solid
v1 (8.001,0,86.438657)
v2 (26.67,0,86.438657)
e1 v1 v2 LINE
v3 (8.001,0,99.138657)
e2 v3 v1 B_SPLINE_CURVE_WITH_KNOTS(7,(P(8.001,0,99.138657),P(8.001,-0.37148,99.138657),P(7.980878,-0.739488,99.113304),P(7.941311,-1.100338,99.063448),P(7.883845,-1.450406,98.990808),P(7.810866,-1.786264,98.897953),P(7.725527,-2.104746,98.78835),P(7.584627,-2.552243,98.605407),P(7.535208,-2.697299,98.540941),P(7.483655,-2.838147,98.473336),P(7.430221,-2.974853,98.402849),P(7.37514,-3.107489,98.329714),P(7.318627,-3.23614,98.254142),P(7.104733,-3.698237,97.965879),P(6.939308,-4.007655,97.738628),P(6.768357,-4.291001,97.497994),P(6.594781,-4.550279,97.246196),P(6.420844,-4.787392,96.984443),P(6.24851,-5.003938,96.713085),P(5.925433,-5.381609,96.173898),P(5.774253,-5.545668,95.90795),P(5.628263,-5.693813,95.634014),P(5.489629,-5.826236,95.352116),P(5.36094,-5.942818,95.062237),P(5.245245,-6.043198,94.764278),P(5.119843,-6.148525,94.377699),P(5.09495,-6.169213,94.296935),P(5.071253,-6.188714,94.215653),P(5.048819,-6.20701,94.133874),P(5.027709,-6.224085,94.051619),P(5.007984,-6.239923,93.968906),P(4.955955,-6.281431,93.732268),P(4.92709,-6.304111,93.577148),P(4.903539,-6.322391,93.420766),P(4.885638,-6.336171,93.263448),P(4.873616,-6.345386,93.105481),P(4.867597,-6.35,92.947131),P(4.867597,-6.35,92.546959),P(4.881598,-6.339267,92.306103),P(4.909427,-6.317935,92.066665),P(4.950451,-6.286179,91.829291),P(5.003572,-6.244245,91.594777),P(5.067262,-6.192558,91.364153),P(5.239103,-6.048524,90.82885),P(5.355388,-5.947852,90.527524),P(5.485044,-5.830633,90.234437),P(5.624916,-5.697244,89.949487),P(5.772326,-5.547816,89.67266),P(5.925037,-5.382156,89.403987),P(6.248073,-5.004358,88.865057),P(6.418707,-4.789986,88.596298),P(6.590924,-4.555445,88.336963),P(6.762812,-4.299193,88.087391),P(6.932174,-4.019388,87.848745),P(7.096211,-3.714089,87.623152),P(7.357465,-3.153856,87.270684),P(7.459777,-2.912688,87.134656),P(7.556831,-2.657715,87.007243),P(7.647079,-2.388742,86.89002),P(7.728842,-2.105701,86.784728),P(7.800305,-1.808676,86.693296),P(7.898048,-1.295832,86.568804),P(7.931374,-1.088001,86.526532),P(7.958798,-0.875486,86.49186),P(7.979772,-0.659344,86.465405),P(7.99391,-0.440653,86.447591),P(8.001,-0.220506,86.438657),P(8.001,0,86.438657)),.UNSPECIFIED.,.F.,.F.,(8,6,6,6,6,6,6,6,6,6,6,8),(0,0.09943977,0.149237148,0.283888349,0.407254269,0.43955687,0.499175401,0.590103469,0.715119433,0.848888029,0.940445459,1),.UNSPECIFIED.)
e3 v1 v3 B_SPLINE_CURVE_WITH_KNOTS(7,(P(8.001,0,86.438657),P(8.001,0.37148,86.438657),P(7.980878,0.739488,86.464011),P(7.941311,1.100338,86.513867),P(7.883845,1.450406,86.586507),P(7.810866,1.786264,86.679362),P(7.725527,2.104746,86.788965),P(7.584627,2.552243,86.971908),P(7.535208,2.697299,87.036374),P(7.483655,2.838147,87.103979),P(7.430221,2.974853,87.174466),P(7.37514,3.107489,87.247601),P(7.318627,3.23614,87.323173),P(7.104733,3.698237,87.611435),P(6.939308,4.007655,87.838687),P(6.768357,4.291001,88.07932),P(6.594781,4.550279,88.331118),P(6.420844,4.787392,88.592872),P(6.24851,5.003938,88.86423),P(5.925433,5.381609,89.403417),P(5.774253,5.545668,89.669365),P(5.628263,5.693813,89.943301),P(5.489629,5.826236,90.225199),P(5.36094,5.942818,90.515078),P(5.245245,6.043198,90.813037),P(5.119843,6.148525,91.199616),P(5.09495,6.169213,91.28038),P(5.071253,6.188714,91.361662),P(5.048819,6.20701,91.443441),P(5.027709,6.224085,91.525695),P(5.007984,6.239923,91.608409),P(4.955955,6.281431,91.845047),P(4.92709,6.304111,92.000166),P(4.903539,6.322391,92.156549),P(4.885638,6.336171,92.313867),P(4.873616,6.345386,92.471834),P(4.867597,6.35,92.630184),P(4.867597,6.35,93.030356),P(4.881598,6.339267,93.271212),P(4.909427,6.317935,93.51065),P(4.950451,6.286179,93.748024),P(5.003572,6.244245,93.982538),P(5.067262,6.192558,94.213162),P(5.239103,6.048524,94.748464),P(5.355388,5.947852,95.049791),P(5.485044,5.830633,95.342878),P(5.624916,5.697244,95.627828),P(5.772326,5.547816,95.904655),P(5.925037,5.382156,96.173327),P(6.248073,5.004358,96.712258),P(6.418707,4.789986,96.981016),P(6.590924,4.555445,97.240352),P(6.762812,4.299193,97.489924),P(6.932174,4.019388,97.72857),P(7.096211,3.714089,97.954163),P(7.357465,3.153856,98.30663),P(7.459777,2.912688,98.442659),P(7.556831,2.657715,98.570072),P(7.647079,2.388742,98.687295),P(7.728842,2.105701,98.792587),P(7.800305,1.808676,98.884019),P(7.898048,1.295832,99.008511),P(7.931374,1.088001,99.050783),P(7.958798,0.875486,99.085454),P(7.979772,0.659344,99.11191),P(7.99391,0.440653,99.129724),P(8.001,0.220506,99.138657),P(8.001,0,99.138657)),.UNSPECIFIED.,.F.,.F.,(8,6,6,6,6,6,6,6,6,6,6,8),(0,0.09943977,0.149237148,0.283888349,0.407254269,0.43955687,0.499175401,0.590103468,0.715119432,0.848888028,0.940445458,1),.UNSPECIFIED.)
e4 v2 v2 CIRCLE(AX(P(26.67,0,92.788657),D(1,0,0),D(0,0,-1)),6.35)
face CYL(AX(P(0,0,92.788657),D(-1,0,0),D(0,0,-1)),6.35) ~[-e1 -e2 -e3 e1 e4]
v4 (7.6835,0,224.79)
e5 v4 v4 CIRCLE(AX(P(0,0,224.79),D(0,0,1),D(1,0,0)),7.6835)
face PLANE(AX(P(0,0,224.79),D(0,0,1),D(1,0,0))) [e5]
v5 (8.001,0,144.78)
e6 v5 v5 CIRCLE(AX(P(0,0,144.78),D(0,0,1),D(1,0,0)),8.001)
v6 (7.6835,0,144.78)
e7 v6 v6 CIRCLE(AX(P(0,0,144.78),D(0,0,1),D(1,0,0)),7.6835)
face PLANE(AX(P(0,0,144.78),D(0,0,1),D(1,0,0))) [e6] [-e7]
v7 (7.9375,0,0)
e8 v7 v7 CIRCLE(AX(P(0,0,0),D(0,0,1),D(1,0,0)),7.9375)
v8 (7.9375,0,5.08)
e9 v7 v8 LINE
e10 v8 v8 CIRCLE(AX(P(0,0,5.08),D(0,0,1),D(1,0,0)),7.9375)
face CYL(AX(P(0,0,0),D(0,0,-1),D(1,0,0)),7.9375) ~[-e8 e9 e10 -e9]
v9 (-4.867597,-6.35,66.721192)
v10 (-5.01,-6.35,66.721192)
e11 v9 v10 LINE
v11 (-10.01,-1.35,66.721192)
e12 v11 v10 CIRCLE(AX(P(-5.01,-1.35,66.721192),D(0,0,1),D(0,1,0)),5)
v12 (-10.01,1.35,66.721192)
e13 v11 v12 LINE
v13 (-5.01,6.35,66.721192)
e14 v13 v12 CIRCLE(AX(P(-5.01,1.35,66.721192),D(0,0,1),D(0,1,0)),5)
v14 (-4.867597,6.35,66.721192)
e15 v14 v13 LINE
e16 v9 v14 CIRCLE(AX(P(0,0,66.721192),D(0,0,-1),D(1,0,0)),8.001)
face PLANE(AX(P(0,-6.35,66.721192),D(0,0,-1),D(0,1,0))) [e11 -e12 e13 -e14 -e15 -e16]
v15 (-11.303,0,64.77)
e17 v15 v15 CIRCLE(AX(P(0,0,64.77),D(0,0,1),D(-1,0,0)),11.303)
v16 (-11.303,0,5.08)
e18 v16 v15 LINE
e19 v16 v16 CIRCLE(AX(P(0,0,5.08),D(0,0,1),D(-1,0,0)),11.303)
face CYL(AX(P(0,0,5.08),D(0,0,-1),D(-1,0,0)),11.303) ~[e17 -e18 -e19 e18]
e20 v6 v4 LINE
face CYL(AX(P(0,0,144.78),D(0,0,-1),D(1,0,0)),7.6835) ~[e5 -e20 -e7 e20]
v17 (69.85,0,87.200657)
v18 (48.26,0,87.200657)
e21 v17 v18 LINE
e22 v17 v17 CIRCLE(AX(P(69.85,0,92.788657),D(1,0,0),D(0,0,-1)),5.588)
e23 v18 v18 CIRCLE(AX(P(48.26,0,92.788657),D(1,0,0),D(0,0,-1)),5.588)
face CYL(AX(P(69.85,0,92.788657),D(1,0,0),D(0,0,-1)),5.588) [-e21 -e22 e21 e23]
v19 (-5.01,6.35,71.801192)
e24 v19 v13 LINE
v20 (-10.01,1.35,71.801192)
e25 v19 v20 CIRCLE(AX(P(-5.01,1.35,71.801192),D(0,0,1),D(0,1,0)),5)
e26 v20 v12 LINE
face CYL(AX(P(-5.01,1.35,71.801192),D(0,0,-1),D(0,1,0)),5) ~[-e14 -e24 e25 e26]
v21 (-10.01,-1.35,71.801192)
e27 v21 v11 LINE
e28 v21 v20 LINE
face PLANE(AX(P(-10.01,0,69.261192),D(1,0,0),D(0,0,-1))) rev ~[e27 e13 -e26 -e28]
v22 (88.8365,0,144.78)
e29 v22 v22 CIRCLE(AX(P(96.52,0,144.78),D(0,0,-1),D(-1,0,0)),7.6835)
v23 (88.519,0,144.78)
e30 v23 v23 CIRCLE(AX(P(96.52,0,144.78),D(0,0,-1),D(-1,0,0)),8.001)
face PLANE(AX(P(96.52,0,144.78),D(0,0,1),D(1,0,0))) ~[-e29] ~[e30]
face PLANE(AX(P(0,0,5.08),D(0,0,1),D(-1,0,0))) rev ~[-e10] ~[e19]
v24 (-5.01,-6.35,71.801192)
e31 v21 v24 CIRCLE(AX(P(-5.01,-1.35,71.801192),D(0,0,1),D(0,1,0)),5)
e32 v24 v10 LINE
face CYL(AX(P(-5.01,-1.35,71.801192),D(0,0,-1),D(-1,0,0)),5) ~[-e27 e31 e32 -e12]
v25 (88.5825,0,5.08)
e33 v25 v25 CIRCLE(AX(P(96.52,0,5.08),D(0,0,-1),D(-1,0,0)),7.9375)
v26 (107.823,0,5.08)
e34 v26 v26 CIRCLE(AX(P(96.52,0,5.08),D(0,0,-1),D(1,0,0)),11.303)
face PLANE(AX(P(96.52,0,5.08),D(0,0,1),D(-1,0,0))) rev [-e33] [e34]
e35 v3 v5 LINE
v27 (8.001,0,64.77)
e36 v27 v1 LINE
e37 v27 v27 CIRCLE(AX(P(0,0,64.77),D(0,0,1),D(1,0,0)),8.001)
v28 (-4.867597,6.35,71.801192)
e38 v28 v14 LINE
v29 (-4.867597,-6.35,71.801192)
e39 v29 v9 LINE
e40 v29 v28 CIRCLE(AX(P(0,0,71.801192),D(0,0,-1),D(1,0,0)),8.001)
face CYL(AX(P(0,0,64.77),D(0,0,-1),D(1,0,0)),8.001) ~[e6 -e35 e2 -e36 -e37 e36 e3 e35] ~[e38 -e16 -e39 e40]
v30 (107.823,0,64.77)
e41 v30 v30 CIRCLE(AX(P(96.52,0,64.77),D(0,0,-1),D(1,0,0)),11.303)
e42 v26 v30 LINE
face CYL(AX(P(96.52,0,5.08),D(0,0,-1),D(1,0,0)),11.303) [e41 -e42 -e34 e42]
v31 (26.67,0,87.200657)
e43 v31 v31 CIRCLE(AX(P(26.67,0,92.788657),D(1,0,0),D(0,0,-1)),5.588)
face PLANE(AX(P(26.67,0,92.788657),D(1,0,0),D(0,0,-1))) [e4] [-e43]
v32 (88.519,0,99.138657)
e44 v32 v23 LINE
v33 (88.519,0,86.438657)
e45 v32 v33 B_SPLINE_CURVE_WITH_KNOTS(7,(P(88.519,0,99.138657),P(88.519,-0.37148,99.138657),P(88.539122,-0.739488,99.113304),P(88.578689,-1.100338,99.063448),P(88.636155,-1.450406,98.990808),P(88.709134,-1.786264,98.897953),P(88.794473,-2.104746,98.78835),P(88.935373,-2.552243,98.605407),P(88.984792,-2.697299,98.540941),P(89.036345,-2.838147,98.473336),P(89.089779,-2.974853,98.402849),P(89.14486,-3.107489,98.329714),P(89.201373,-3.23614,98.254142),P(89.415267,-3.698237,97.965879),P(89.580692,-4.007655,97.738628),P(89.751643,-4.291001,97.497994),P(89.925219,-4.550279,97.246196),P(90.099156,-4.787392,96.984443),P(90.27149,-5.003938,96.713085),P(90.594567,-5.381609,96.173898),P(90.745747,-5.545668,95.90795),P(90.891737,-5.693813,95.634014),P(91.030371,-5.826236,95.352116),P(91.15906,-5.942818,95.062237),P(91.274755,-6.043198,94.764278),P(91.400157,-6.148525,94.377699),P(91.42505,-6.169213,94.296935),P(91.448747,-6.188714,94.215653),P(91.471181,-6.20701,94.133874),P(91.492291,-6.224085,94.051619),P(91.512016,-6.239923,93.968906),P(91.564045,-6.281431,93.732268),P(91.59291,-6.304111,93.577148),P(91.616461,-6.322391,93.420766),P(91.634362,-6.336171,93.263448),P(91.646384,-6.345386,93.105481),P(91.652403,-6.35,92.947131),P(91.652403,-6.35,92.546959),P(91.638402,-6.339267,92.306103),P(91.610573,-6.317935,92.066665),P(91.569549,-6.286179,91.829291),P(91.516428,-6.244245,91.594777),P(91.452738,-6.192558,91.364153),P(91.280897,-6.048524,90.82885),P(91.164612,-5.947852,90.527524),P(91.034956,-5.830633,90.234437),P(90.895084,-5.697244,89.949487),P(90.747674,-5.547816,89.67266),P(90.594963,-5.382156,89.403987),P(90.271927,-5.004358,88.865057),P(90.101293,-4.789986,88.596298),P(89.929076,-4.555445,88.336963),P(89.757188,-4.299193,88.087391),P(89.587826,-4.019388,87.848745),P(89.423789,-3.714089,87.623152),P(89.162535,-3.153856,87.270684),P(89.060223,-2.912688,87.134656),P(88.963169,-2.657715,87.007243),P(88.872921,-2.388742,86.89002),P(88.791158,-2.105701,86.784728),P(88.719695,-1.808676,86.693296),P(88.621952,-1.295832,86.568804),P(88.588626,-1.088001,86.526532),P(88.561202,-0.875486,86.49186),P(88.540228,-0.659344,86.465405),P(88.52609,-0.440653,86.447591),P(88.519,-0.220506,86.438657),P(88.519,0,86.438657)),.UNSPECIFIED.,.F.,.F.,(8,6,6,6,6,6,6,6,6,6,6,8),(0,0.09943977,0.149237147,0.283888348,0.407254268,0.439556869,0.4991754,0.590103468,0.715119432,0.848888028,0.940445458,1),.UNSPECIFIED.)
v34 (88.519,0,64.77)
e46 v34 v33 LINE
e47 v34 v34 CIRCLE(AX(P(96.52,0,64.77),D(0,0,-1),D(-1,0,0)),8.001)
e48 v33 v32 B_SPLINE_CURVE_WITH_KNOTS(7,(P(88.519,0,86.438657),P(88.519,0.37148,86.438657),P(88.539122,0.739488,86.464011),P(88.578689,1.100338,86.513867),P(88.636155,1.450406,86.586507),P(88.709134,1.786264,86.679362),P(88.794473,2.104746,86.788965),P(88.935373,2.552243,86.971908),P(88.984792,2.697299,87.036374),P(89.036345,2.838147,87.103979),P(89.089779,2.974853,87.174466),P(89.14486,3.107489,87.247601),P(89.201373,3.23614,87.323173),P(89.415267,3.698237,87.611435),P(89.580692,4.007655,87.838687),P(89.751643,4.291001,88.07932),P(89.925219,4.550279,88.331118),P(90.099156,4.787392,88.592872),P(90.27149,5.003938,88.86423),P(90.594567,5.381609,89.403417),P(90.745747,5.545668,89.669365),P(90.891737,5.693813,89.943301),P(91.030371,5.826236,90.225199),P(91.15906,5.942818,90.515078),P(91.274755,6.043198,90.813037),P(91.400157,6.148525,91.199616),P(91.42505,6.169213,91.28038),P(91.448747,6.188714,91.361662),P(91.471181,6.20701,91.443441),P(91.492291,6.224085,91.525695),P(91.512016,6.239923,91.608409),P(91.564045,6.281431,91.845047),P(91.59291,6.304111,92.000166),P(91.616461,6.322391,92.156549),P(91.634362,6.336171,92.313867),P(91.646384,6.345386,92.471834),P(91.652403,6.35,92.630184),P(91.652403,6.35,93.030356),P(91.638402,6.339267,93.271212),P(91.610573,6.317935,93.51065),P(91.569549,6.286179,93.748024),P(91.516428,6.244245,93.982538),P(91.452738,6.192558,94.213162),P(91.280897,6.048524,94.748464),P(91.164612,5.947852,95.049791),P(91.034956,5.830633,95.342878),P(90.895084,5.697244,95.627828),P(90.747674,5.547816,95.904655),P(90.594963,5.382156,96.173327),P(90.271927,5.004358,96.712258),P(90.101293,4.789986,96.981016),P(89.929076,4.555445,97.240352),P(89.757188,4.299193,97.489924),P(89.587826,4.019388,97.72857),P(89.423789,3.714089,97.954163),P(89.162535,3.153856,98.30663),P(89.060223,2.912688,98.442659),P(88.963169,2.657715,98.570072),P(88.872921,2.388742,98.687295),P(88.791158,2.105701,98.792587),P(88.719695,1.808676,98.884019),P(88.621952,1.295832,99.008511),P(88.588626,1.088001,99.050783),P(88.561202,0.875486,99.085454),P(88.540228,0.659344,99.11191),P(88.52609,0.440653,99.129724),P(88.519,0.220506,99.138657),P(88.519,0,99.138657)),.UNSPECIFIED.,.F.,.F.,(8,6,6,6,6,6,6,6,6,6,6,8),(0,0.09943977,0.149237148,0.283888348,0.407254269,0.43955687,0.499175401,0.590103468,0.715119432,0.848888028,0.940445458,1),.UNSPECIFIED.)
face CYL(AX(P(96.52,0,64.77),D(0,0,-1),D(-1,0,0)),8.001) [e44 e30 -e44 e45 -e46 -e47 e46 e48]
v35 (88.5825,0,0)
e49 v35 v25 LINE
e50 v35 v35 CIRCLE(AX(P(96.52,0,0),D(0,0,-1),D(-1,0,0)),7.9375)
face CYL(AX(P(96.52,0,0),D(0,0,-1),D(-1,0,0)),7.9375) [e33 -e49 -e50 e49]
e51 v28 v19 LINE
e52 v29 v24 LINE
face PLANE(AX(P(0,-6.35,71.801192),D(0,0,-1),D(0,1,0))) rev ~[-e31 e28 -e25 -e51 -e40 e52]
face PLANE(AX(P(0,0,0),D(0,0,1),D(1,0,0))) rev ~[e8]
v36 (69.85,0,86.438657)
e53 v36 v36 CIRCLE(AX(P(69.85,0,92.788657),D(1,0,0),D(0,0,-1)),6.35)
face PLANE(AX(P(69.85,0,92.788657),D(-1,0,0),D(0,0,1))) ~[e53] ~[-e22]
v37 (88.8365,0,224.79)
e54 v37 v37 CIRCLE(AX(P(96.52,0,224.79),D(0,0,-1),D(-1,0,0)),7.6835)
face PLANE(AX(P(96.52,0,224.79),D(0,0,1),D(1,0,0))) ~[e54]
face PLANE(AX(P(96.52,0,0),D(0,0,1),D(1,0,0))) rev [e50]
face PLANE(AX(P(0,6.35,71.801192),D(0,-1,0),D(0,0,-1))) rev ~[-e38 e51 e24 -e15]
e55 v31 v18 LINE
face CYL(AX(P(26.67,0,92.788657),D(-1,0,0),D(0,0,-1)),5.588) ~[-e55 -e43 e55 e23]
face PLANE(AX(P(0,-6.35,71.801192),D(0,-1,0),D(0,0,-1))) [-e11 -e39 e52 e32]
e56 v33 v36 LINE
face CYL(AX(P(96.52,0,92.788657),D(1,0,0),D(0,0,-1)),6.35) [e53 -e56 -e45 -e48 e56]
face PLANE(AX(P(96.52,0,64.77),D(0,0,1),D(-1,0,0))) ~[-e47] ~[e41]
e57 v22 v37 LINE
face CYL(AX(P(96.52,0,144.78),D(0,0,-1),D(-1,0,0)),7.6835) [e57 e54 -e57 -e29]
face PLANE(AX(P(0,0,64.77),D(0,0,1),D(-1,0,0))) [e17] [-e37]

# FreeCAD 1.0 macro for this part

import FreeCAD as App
import Part
import Sketcher

V = App.Vector
Q = App.Units.Quantity


def edges_at(feature, points):
    """Names of the edges that pass closest to the given points."""
    edges = feature.Shape.Edges
    near = lambda p: min(range(len(edges)), key=lambda i: edges[i].distToShape(Part.Vertex(*p))[0])
    return sorted({f"Edge{near(p) + 1}" for p in points})


def add_polygon(sketch, points):
    """Adds a closed chain of lines whose ends are joined by coincident constraints."""
    first, n = sketch.GeometryCount, len(points)
    for a, b in zip(points, points[1:] + points[:1]):
        sketch.addGeometry(Part.LineSegment(App.Vector(*a, 0), App.Vector(*b, 0)), False)
    for i in range(n):
        sketch.addConstraint(Sketcher.Constraint("Coincident", first + i, 2, first + (i + 1) % n, 1))

doc = App.newDocument("Part")
body = doc.addObject("PartDesign::Body", "Body")

sketch1 = body.newObject("Sketcher::SketchObject", "Sketch")
sketch1.AttachmentSupport = (doc.getObject("XY_Plane"), [""])
sketch1.MapMode = "FlatFace"
sketch1.addGeometry(Part.Circle(V(0, 0, 0), V(0, 0, 1), 8), False)
sketch1.addConstraint([
    Sketcher.Constraint("Coincident", 0, 3, -1, 1),
    Sketcher.Constraint("Diameter", 0, Q("0.625 in")),
])
pad1 = body.newObject("PartDesign::Pad", "Pad")
pad1.Profile = sketch1
pad1.Length = Q("0.2 in")

sketch2 = body.newObject("Sketcher::SketchObject", "Sketch001")
sketch2.AttachmentSupport = (doc.getObject("XY_Plane"), [""])
sketch2.MapMode = "FlatFace"
sketch2.AttachmentOffset = App.Placement(V(0, 0, 0.2 * 25.4), App.Rotation())
sketch2.addGeometry(Part.Circle(V(0, 0, 0), V(0, 0, 1), 11), False)
sketch2.addConstraint([
    Sketcher.Constraint("Coincident", 0, 3, -1, 1),
    Sketcher.Constraint("Diameter", 0, Q("0.89 in")),
])
pad2 = body.newObject("PartDesign::Pad", "Pad001")
pad2.Profile = sketch2
pad2.Length = Q("2.35 in")

sketch3 = body.newObject("Sketcher::SketchObject", "Sketch002")
sketch3.AttachmentSupport = (doc.getObject("XY_Plane"), [""])
sketch3.MapMode = "FlatFace"
sketch3.AttachmentOffset = App.Placement(V(0, 0, 2.55 * 25.4), App.Rotation())
sketch3.addGeometry(Part.Circle(V(0, 0, 0), V(0, 0, 1), 8), False)
sketch3.addConstraint([
    Sketcher.Constraint("Coincident", 0, 3, -1, 1),
    Sketcher.Constraint("Diameter", 0, Q("0.63 in")),
])
pad3 = body.newObject("PartDesign::Pad", "Pad002")
pad3.Profile = sketch3
pad3.Length = Q("3.15 in")

sketch4 = body.newObject("Sketcher::SketchObject", "Sketch003")
sketch4.AttachmentSupport = (doc.getObject("XY_Plane"), [""])
sketch4.MapMode = "FlatFace"
sketch4.AttachmentOffset = App.Placement(V(0, 0, 5.7 * 25.4), App.Rotation())
sketch4.addGeometry(Part.Circle(V(0, 0, 0), V(0, 0, 1), 8), False)
sketch4.addConstraint([
    Sketcher.Constraint("Coincident", 0, 3, -1, 1),
    Sketcher.Constraint("Diameter", 0, Q("0.605 in")),
])
pad4 = body.newObject("PartDesign::Pad", "Pad003")
pad4.Profile = sketch4
pad4.Length = Q("3.15 in")

sketch5 = body.newObject("Sketcher::SketchObject", "Sketch004")
sketch5.AttachmentSupport = (doc.getObject("YZ_Plane"), [""])
sketch5.MapMode = "FlatFace"
add_polygon(sketch5, [(6, 72), (-6, 72), (-6, 67), (6, 67)])
sketch5.addConstraint([
    Sketcher.Constraint("Horizontal", 0),
    Sketcher.Constraint("Vertical", 1),
    Sketcher.Constraint("Horizontal", 2),
    Sketcher.Constraint("Vertical", 3),
    Sketcher.Constraint("DistanceX", 0, 2, 0, 1, Q("0.5 in")),
    Sketcher.Constraint("DistanceY", 1, 2, 1, 1, Q("0.2 in")),
    Sketcher.Constraint("DistanceX", 0, 2, -1, 1, Q("0.25 in")),
    Sketcher.Constraint("DistanceY", -1, 1, 0, 2, Q("71.801192 mm")),
])
pad5 = body.newObject("PartDesign::Pad", "Pad004")
pad5.Profile = sketch5
pad5.Length = 10.01
pad5.Reversed = True
doc.recompute()

fillet = body.newObject("PartDesign::Fillet", "Fillet")
fillet.Base = (pad5, edges_at(pad5, [(-10.01, -6.35, 69.261), (-10.01, 6.35, 69.261)]))
fillet.Radius = 5

sketch6 = body.newObject("Sketcher::SketchObject", "Sketch005")
sketch6.AttachmentSupport = (doc.getObject("YZ_Plane"), [""])
sketch6.MapMode = "FlatFace"
sketch6.addGeometry(Part.Circle(V(0, 93, 0), V(0, 0, 1), 6), False)
sketch6.addConstraint([
    Sketcher.Constraint("PointOnObject", 0, 3, -2),
    Sketcher.Constraint("Diameter", 0, Q("0.5 in")),
    Sketcher.Constraint("DistanceY", -1, 1, 0, 3, Q("92.788657 mm")),
])
pad6 = body.newObject("PartDesign::Pad", "Pad005")
pad6.Profile = sketch6
pad6.Length = Q("1.05 in")

sketch7 = body.newObject("Sketcher::SketchObject", "Sketch006")
sketch7.AttachmentSupport = (doc.getObject("YZ_Plane"), [""])
sketch7.MapMode = "FlatFace"
sketch7.AttachmentOffset = App.Placement(V(0, 0, 1.05 * 25.4), App.Rotation())
sketch7.addGeometry(Part.Circle(V(0, 93, 0), V(0, 0, 1), 6), False)
sketch7.addConstraint([
    Sketcher.Constraint("PointOnObject", 0, 3, -2),
    Sketcher.Constraint("Diameter", 0, Q("0.44 in")),
    Sketcher.Constraint("DistanceY", -1, 1, 0, 3, Q("92.788657 mm")),
])
pad7 = body.newObject("PartDesign::Pad", "Pad006")
pad7.Profile = sketch7
pad7.Length = Q("0.85 in")
doc.recompute()

datumplane = body.newObject("PartDesign::Plane", "DatumPlane")
datumplane.AttachmentSupport = (doc.getObject("YZ_Plane"), [""])
datumplane.MapMode = "FlatFace"
datumplane.AttachmentOffset = App.Placement(V(0, 0, 1.9 * 25.4), App.Rotation())
mirrored = body.newObject("PartDesign::Mirrored", "Mirrored")
mirrored.Originals = [pad1, pad2, pad3, pad4, pad6, pad7]
mirrored.MirrorPlane = (datumplane, [""])
body.Tip = mirrored

doc.recompute()
